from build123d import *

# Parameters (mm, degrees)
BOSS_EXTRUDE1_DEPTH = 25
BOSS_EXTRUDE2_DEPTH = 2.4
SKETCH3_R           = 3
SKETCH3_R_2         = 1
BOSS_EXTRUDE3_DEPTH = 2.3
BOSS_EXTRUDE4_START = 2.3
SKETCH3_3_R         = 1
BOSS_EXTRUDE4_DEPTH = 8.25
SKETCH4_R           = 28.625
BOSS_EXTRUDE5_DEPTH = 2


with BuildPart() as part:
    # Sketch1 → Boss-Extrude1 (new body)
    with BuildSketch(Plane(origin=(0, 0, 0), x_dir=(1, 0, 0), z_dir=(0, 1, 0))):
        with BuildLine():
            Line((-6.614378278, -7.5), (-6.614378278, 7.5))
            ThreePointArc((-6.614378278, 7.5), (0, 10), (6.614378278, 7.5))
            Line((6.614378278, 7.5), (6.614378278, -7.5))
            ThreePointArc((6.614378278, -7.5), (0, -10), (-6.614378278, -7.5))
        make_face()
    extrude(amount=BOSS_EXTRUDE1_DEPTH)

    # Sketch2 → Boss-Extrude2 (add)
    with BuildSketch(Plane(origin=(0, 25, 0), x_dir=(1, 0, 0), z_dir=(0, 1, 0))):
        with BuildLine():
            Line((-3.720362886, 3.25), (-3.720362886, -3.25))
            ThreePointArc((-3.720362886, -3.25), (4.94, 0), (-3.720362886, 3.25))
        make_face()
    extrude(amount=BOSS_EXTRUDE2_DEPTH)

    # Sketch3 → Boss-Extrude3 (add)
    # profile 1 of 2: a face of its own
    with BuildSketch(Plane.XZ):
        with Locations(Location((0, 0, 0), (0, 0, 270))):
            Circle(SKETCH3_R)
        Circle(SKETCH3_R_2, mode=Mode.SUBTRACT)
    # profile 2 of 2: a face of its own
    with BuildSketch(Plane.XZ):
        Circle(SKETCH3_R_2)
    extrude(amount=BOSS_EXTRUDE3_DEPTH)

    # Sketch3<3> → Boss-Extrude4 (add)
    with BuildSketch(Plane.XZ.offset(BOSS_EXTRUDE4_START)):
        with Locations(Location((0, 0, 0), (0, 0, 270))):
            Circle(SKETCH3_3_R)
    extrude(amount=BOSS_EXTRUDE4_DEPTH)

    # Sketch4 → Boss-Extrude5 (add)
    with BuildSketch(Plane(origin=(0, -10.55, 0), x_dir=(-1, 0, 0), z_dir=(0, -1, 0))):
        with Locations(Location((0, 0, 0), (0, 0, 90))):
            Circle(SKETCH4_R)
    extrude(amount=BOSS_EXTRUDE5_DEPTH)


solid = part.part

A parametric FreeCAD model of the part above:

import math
import FreeCAD as App
import Part
import Sketcher
from FreeCAD import Vector

doc = App.newDocument("Part")
body = doc.addObject("PartDesign::Body", "Body")

sketch1 = doc.addObject("Sketcher::SketchObject", "Sketch")
body.addObject(sketch1)
sketch1.AttachmentSupport = (doc.XZ_Plane, [""])
sketch1.MapMode = "FlatFace"
sketch1.addGeometry([
    Part.LineSegment(Vector(-7, -8, 0), Vector(-7, 8, 0)),
    Part.ArcOfCircle(Part.Circle(Vector(0, 0, 0), Vector(0, 0, 1), 10), math.radians(49), math.radians(131)),
    Part.LineSegment(Vector(7, 8, 0), Vector(7, -8, 0)),
    Part.ArcOfCircle(Part.Circle(Vector(0, 0, 0), Vector(0, 0, 1), 10), math.radians(-131), math.radians(-49)),
], False)
sketch1.addConstraint([
    Sketcher.Constraint("Coincident", 0, 2, 1, 2),
    Sketcher.Constraint("Coincident", 1, 1, 2, 1),
    Sketcher.Constraint("Coincident", 2, 2, 3, 2),
    Sketcher.Constraint("Coincident", 3, 1, 0, 1),
    Sketcher.Constraint("Vertical", 0),
    Sketcher.Constraint("Vertical", 2),
    Sketcher.Constraint("Coincident", 1, 3, -1, 1),
    Sketcher.Constraint("Coincident", 3, 3, -1, 1),
    Sketcher.Constraint("Equal", 1, 3),
    Sketcher.Constraint("Horizontal", 0, 2, 1, 1),
    Sketcher.Constraint("Radius", 1, 10.0),
    Sketcher.Constraint("DistanceY", 0, 1, 0, 2, 15.0),
])
pad1 = doc.addObject("PartDesign::Pad", "Pad")
body.addObject(pad1)
pad1.Profile = sketch1
pad1.Length = 25
pad1.Reversed = True

sketch2 = doc.addObject("Sketcher::SketchObject", "Sketch001")
body.addObject(sketch2)
sketch2.AttachmentSupport = (doc.XZ_Plane, [""])
sketch2.MapMode = "FlatFace"
sketch2.AttachmentOffset = App.Placement(Vector(0, 0, -25), App.Rotation())
sketch2.addGeometry([
    Part.LineSegment(Vector(-3.7, -3.2, 0), Vector(-3.7, 3.2, 0)),
    Part.ArcOfCircle(Part.Circle(Vector(0, 0, 0), Vector(0, 0, 1), 4.9), math.radians(-139), math.radians(139)),
], False)
sketch2.addConstraint([
    Sketcher.Constraint("Coincident", 0, 1, 1, 1),
    Sketcher.Constraint("Coincident", 1, 2, 0, 2),
    Sketcher.Constraint("Vertical", 0),
    Sketcher.Constraint("Coincident", 1, 3, -1, 1),
    Sketcher.Constraint("Radius", 1, 4.94),
    Sketcher.Constraint("DistanceY", 0, 1, 0, 2, 6.5),
])
pad2 = doc.addObject("PartDesign::Pad", "Pad001")
body.addObject(pad2)
pad2.Profile = sketch2
pad2.Length = 2.4
pad2.Reversed = True

sketch3 = doc.addObject("Sketcher::SketchObject", "Sketch002")
body.addObject(sketch3)
sketch3.AttachmentSupport = (doc.XZ_Plane, [""])
sketch3.MapMode = "FlatFace"
sketch3.addGeometry(Part.Circle(Vector(0, 0, 0), Vector(0, 0, 1), 3), False)
sketch3.addConstraint([
    Sketcher.Constraint("Coincident", 0, 3, -1, 1),
    Sketcher.Constraint("Diameter", 0, 6.0),
])
pad3 = doc.addObject("PartDesign::Pad", "Pad002")
body.addObject(pad3)
pad3.Profile = sketch3
pad3.Length = 2.3

sketch4 = doc.addObject("Sketcher::SketchObject", "Sketch003")
body.addObject(sketch4)
sketch4.AttachmentSupport = (doc.XZ_Plane, [""])
sketch4.MapMode = "FlatFace"
sketch4.AttachmentOffset = App.Placement(Vector(0, 0, 2.3), App.Rotation())
sketch4.addGeometry(Part.Circle(Vector(0, 0, 0), Vector(0, 0, 1), 1), False)
sketch4.addConstraint([
    Sketcher.Constraint("Coincident", 0, 3, -1, 1),
    Sketcher.Constraint("Diameter", 0, 2.0),
])
pad4 = doc.addObject("PartDesign::Pad", "Pad003")
body.addObject(pad4)
pad4.Profile = sketch4
pad4.Length = 8.25

sketch5 = doc.addObject("Sketcher::SketchObject", "Sketch004")
body.addObject(sketch5)
sketch5.AttachmentSupport = (doc.XZ_Plane, [""])
sketch5.MapMode = "FlatFace"
sketch5.AttachmentOffset = App.Placement(Vector(0, 0, 10.55), App.Rotation())
sketch5.addGeometry(Part.Circle(Vector(0, 0, 0), Vector(0, 0, 1), 29), False)
sketch5.addConstraint([
    Sketcher.Constraint("Coincident", 0, 3, -1, 1),
    Sketcher.Constraint("Diameter", 0, 57.25),
])
pad5 = doc.addObject("PartDesign::Pad", "Pad004")
body.addObject(pad5)
pad5.Profile = sketch5
pad5.Length = 2

doc.recompute()
